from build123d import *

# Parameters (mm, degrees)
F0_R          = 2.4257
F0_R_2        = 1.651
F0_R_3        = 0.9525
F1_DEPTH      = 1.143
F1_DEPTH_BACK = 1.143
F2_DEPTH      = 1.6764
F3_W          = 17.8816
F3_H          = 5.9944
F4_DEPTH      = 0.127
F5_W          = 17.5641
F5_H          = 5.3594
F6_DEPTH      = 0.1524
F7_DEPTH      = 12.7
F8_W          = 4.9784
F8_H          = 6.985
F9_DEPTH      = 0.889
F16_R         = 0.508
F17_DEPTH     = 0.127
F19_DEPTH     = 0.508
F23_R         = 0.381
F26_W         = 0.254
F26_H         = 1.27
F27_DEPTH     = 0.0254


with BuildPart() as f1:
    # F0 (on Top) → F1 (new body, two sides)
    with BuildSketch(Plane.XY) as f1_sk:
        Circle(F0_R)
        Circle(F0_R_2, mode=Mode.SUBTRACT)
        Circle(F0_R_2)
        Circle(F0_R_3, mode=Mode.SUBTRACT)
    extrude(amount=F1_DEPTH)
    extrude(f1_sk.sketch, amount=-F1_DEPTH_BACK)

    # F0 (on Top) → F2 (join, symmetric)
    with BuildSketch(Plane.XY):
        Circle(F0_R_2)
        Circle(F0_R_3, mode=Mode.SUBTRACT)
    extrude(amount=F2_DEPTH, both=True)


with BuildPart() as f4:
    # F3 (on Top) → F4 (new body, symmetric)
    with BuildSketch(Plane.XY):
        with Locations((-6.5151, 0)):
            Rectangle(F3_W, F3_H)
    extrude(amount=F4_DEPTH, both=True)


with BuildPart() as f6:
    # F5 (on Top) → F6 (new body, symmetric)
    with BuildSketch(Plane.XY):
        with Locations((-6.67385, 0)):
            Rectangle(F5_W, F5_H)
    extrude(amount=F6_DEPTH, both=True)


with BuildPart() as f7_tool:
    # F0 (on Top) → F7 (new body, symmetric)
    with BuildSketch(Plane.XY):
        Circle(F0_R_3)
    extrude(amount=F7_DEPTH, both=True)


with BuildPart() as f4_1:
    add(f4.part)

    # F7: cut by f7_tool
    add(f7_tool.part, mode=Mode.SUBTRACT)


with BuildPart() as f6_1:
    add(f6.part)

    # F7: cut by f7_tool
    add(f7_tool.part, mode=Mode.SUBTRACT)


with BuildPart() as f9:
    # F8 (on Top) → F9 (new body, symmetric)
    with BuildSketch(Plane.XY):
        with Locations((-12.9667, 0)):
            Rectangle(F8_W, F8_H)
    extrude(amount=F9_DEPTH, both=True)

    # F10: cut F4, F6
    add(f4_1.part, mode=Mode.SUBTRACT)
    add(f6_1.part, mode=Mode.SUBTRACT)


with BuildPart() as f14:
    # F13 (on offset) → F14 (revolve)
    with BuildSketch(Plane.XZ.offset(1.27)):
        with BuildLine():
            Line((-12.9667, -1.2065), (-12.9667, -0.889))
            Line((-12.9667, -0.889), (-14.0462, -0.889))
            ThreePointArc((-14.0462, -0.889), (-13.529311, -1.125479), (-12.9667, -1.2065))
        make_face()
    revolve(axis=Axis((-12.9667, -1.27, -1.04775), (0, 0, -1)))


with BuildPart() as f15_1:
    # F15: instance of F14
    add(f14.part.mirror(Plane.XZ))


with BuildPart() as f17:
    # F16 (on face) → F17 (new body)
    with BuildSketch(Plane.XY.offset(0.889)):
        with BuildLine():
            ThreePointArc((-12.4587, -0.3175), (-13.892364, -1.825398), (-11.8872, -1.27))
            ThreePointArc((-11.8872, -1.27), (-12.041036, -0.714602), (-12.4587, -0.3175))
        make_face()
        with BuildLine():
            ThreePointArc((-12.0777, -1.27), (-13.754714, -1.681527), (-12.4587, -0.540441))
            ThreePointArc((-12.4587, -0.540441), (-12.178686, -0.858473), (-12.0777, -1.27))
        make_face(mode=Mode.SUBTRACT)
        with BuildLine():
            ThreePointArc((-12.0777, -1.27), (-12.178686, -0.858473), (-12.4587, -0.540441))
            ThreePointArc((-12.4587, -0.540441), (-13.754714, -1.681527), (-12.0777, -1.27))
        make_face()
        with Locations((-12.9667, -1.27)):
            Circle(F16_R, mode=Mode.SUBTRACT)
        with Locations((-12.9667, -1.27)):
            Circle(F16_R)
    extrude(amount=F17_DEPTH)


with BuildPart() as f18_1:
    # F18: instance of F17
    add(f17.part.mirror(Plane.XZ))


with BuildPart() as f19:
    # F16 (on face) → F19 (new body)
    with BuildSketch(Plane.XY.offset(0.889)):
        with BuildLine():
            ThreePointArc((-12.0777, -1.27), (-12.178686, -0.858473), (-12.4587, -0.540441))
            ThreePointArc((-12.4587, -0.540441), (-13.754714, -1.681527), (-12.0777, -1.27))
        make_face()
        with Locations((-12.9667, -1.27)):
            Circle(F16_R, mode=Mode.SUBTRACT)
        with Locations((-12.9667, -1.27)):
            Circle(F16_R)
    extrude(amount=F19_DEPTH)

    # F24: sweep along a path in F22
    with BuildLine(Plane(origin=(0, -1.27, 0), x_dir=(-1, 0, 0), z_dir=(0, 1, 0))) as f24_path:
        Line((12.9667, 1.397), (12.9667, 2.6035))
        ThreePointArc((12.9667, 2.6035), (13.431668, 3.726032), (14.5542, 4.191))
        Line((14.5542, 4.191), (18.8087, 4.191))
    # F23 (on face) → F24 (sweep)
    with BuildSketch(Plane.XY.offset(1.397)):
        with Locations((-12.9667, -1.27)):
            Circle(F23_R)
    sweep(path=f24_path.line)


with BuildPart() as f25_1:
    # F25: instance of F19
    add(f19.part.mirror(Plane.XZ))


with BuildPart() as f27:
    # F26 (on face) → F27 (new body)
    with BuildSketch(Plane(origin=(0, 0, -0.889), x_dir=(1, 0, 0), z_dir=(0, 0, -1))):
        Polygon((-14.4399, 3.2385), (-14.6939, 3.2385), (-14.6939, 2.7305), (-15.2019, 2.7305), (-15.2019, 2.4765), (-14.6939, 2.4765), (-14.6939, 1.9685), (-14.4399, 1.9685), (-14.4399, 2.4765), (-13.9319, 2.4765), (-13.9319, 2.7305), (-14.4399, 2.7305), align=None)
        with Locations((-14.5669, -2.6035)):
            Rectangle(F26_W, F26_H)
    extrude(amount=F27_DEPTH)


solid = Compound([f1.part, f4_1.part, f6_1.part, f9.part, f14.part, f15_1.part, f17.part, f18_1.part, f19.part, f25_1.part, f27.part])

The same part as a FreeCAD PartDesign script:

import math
import FreeCAD as App
import Part
import Sketcher

V = App.Vector
Q = App.Units.Quantity

doc = App.newDocument("Part")
params = doc.addObject("Spreadsheet::Sheet", "Params")
for row, (alias, value) in enumerate([
    ("sketch1_diameter", "0.191 in"),
    ("sketch1_diameter2", "0.075 in"),
    ("pad1_length", "0.045 in"),
    ("pad1_length2", "0.045 in"),
    ("sketch2_diameter", "0.13 in"),
    ("sketch2_diameter2", "0.075 in"),
    ("pad2_length", "0.132 in"),
    ("sketch3_width", "0.704 in"),
    ("sketch3_height", "0.236 in"),
    ("pad3_length", "0.01 in"),
    ("sketch4_height", "0.211 in"),
    ("pad4_length", "0.012 in"),
    ("sketch5_diameter", "0.075 in"),
    ("pad5_length", "1 in"),
    ("sketch6_width", "0.196 in"),
    ("sketch6_height", "0.275 in"),
    ("pad6_length", "0.07 in"),
    ("revolution_angle", "360 deg"),
    ("pad7_length", "0.005 in"),
    ("sketch9_radius", "0.035 in"),
    ("sketch9_width", "0.02 in"),
    ("pad8_length", "0.02 in"),
    ("sketch10_diameter", "0.03 in"),
    ("sketch11_radius", "0.0625 in"),
    ("sketch12_width", "0.01 in"),
    ("sketch12_width2", "0.02 in"),
    ("pad9_length", "0.001 in"),
], start=1):
    params.set(f"A{row}", alias)
    params.set(f"B{row}", "=" + value)
    params.setAlias(f"B{row}", alias)

body = doc.addObject("PartDesign::Body", "Body")

# Sketch on XY plane
sketch1 = body.newObject("Sketcher::SketchObject", "Sketch")
sketch1.AttachmentSupport = (doc.getObject("XY_Plane"), [""])
sketch1.MapMode = "FlatFace"
sketch1.addGeometry(Part.Circle(V(0, 0, 0), V(0, 0, 1), 2.4), False)
sketch1.addGeometry(Part.Circle(V(0, 0, 0), V(0, 0, 1), 1), False)
sketch1.addConstraint(Sketcher.Constraint("Coincident", 0, 3, -1, 1))
sketch1.addConstraint(Sketcher.Constraint("Coincident", 1, 3, -1, 1))
sketch1.addConstraint(Sketcher.Constraint("Diameter", 0, Q("0.191 in")))
sketch1.addConstraint(Sketcher.Constraint("Diameter", 1, Q("0.075 in")))
sketch1.setExpression("Constraints[2]", "Params.sketch1_diameter")
sketch1.setExpression("Constraints[3]", "Params.sketch1_diameter2")
pad1 = body.newObject("PartDesign::Pad", "Pad")
pad1.Profile = sketch1
pad1.Type = "TwoLengths"
pad1.setExpression("Length", "Params.pad1_length")
pad1.setExpression("Length2", "Params.pad1_length2")

# Sketch on XY plane
sketch2 = body.newObject("Sketcher::SketchObject", "Sketch001")
sketch2.AttachmentSupport = (doc.getObject("XY_Plane"), [""])
sketch2.MapMode = "FlatFace"
sketch2.addGeometry(Part.Circle(V(0, 0, 0), V(0, 0, 1), 1.7), False)
sketch2.addGeometry(Part.Circle(V(0, 0, 0), V(0, 0, 1), 1), False)
sketch2.addConstraint(Sketcher.Constraint("Coincident", 0, 3, -1, 1))
sketch2.addConstraint(Sketcher.Constraint("Coincident", 1, 3, -1, 1))
sketch2.addConstraint(Sketcher.Constraint("Diameter", 0, Q("0.13 in")))
sketch2.addConstraint(Sketcher.Constraint("Diameter", 1, Q("0.075 in")))
sketch2.setExpression("Constraints[2]", "Params.sketch2_diameter")
sketch2.setExpression("Constraints[3]", "Params.sketch2_diameter2")
pad2 = body.newObject("PartDesign::Pad", "Pad001")
pad2.Profile = sketch2
pad2.setExpression("Length", "Params.pad2_length")
pad2.Midplane = True
body2 = doc.addObject("PartDesign::Body", "Body001")

# Sketch on XY plane
sketch3 = body2.newObject("Sketcher::SketchObject", "Sketch002")
sketch3.AttachmentSupport = (doc.getObject("XY_Plane001"), [""])
sketch3.MapMode = "FlatFace"
sketch3.addGeometry(Part.LineSegment(V(-15, 3, 0), V(-15, -3, 0)), False)
sketch3.addGeometry(Part.LineSegment(V(-15, -3, 0), V(2, -3, 0)), False)
sketch3.addGeometry(Part.LineSegment(V(2, -3, 0), V(2, 3, 0)), False)
sketch3.addGeometry(Part.LineSegment(V(2, 3, 0), V(-15, 3, 0)), False)
sketch3.addConstraint(Sketcher.Constraint("Coincident", 0, 2, 1, 1))
sketch3.addConstraint(Sketcher.Constraint("Coincident", 1, 2, 2, 1))
sketch3.addConstraint(Sketcher.Constraint("Coincident", 2, 2, 3, 1))
sketch3.addConstraint(Sketcher.Constraint("Coincident", 3, 2, 0, 1))
sketch3.addConstraint(Sketcher.Constraint("Vertical", 0))
sketch3.addConstraint(Sketcher.Constraint("Horizontal", 1))
sketch3.addConstraint(Sketcher.Constraint("Vertical", 2))
sketch3.addConstraint(Sketcher.Constraint("Horizontal", 3))
sketch3.addConstraint(Sketcher.Constraint("DistanceX", 1, 1, 1, 2, Q("0.704 in")))
sketch3.addConstraint(Sketcher.Constraint("DistanceY", 0, 2, 0, 1, Q("0.236 in")))
sketch3.addConstraint(Sketcher.Constraint("DistanceY", 0, 2, -1, 1, Q("0.118 in")))
sketch3.addConstraint(Sketcher.Constraint("DistanceX", 0, 2, -1, 1, Q("0.6085 in")))
sketch3.setExpression("Constraints[8]", "Params.sketch3_width")
sketch3.setExpression("Constraints[9]", "Params.sketch3_height")
pad3 = body2.newObject("PartDesign::Pad", "Pad002")
pad3.Profile = sketch3
pad3.setExpression("Length", "Params.pad3_length")
pad3.Midplane = True
body3 = doc.addObject("PartDesign::Body", "Body002")

# Sketch on XY plane
sketch4 = body3.newObject("Sketcher::SketchObject", "Sketch003")
sketch4.AttachmentSupport = (doc.getObject("XY_Plane002"), [""])
sketch4.MapMode = "FlatFace"
sketch4.addGeometry(Part.LineSegment(V(-15, 3, 0), V(-15, -3, 0)), False)
sketch4.addGeometry(Part.LineSegment(V(-15, -3, 0), V(2, -3, 0)), False)
sketch4.addGeometry(Part.LineSegment(V(2, -3, 0), V(2, 3, 0)), False)
sketch4.addGeometry(Part.LineSegment(V(2, 3, 0), V(-15, 3, 0)), False)
sketch4.addConstraint(Sketcher.Constraint("Coincident", 0, 2, 1, 1))
sketch4.addConstraint(Sketcher.Constraint("Coincident", 1, 2, 2, 1))
sketch4.addConstraint(Sketcher.Constraint("Coincident", 2, 2, 3, 1))
sketch4.addConstraint(Sketcher.Constraint("Coincident", 3, 2, 0, 1))
sketch4.addConstraint(Sketcher.Constraint("Vertical", 0))
sketch4.addConstraint(Sketcher.Constraint("Horizontal", 1))
sketch4.addConstraint(Sketcher.Constraint("Vertical", 2))
sketch4.addConstraint(Sketcher.Constraint("Horizontal", 3))
sketch4.addConstraint(Sketcher.Constraint("DistanceY", 0, 2, 0, 1, Q("0.211 in")))
sketch4.addConstraint(Sketcher.Constraint("DistanceX", 1, 1, 1, 2, Q("0.6915 in")))
sketch4.addConstraint(Sketcher.Constraint("DistanceX", -1, 1, 1, 2, Q("0.083 in")))
sketch4.addConstraint(Sketcher.Constraint("DistanceY", 0, 2, -1, 1, Q("0.1055 in")))
sketch4.setExpression("Constraints[8]", "Params.sketch4_height")
pad4 = body3.newObject("PartDesign::Pad", "Pad003")
pad4.Profile = sketch4
pad4.setExpression("Length", "Params.pad4_length")
pad4.Midplane = True
body4 = doc.addObject("PartDesign::Body", "Body003")

# Sketch on XY plane
sketch5 = body4.newObject("Sketcher::SketchObject", "Sketch004")
sketch5.AttachmentSupport = (doc.getObject("XY_Plane003"), [""])
sketch5.MapMode = "FlatFace"
sketch5.addGeometry(Part.Circle(V(0, 0, 0), V(0, 0, 1), 1), False)
sketch5.addConstraint(Sketcher.Constraint("Coincident", 0, 3, -1, 1))
sketch5.addConstraint(Sketcher.Constraint("Diameter", 0, Q("0.075 in")))
sketch5.setExpression("Constraints[1]", "Params.sketch5_diameter")
pad5 = body4.newObject("PartDesign::Pad", "Pad004")
pad5.Profile = sketch5
pad5.setExpression("Length", "Params.pad5_length")
pad5.Midplane = True
doc.recompute()

body5 = doc.addObject("PartDesign::Body", "Body004")
body5.BaseFeature = body4
boolean = body2.newObject("PartDesign::Boolean", "Boolean")
boolean.Type = "Cut"
boolean.addObjects([body5])
doc.recompute()

boolean2 = body3.newObject("PartDesign::Boolean", "Boolean001")
boolean2.Type = "Cut"
boolean2.addObjects([body4])
body6 = doc.addObject("PartDesign::Body", "Body005")

# Sketch on XY plane
sketch6 = body6.newObject("Sketcher::SketchObject", "Sketch005")
sketch6.AttachmentSupport = (doc.getObject("XY_Plane005"), [""])
sketch6.MapMode = "FlatFace"
sketch6.addGeometry(Part.LineSegment(V(-15.5, 3.5, 0), V(-15.5, -3.5, 0)), False)
sketch6.addGeometry(Part.LineSegment(V(-15.5, -3.5, 0), V(-10.5, -3.5, 0)), False)
sketch6.addGeometry(Part.LineSegment(V(-10.5, -3.5, 0), V(-10.5, 3.5, 0)), False)
sketch6.addGeometry(Part.LineSegment(V(-10.5, 3.5, 0), V(-15.5, 3.5, 0)), False)
sketch6.addConstraint(Sketcher.Constraint("Coincident", 0, 2, 1, 1))
sketch6.addConstraint(Sketcher.Constraint("Coincident", 1, 2, 2, 1))
sketch6.addConstraint(Sketcher.Constraint("Coincident", 2, 2, 3, 1))
sketch6.addConstraint(Sketcher.Constraint("Coincident", 3, 2, 0, 1))
sketch6.addConstraint(Sketcher.Constraint("Vertical", 0))
sketch6.addConstraint(Sketcher.Constraint("Horizontal", 1))
sketch6.addConstraint(Sketcher.Constraint("Vertical", 2))
sketch6.addConstraint(Sketcher.Constraint("Horizontal", 3))
sketch6.addConstraint(Sketcher.Constraint("DistanceX", 1, 1, 1, 2, Q("0.196 in")))
sketch6.addConstraint(Sketcher.Constraint("DistanceY", 0, 2, 0, 1, Q("0.275 in")))
sketch6.addConstraint(Sketcher.Constraint("DistanceX", 0, 2, -1, 1, Q("0.6085 in")))
sketch6.addConstraint(Sketcher.Constraint("DistanceY", 0, 2, -1, 1, Q("0.1375 in")))
sketch6.setExpression("Constraints[8]", "Params.sketch6_width")
sketch6.setExpression("Constraints[9]", "Params.sketch6_height")
pad6 = body6.newObject("PartDesign::Pad", "Pad005")
pad6.Profile = sketch6
pad6.setExpression("Length", "Params.pad6_length")
pad6.Midplane = True
doc.recompute()

body7 = doc.addObject("PartDesign::Body", "Body006")
body7.BaseFeature = body2
boolean3 = body6.newObject("PartDesign::Boolean", "Boolean002")
boolean3.Type = "Cut"
boolean3.addObjects([body7])
doc.recompute()

body8 = doc.addObject("PartDesign::Body", "Body007")
body8.BaseFeature = body3
boolean4 = body6.newObject("PartDesign::Boolean", "Boolean003")
boolean4.Type = "Cut"
boolean4.addObjects([body8])
doc.recompute()
body9 = doc.addObject("PartDesign::Body", "Body008")

# Sketch on XZ plane
sketch7 = body9.newObject("Sketcher::SketchObject", "Sketch006")
sketch7.AttachmentSupport = (doc.getObject("XZ_Plane008"), [""])
sketch7.MapMode = "FlatFace"
sketch7.AttachmentOffset = App.Placement(V(0, 0, 0.05 * 25.4), App.Rotation())
sketch7.addGeometry(Part.LineSegment(V(-12.97, -1.21, 0), V(-12.97, -0.89, 0)), False)
sketch7.addGeometry(Part.LineSegment(V(-12.97, -0.89, 0), V(-14.05, -0.89, 0)), False)
sketch7.addGeometry(Part.ArcOfCircle(Part.Circle(V(-12.97, 0.79, 0), V(0, 0, 1), 1.99), math.radians(-123), math.radians(-90)), False)
sketch7.addGeometry(Part.LineSegment(V(-12.97, 0.79, 0), V(-12.97, -1.21, 0)), True)  # axis
sketch7.addConstraint(Sketcher.Constraint("Coincident", 0, 2, 1, 1))
sketch7.addConstraint(Sketcher.Constraint("Coincident", 1, 2, 2, 1))
sketch7.addConstraint(Sketcher.Constraint("Coincident", 2, 2, 0, 1))
sketch7.addConstraint(Sketcher.Constraint("Vertical", 0))
sketch7.addConstraint(Sketcher.Constraint("Horizontal", 1))
sketch7.addConstraint(Sketcher.Constraint("Vertical", 3))
sketch7.addConstraint(Sketcher.Constraint("Coincident", 3, 1, 2, 3))
sketch7.addConstraint(Sketcher.Constraint("Coincident", 3, 2, 2, 2))
sketch7.addConstraint(Sketcher.Constraint("Radius", 2, Q("0.0785 in")))
sketch7.addConstraint(Sketcher.Constraint("DistanceX", 1, 2, 1, 1, Q("0.0425 in")))
sketch7.addConstraint(Sketcher.Constraint("DistanceY", -1, 1, 2, 3, Q("0.031 in")))
sketch7.addConstraint(Sketcher.Constraint("DistanceX", 1, 2, -1, 1, Q("0.553 in")))
revolution = body9.newObject("PartDesign::Revolution", "Revolution")
revolution.Profile = sketch7
revolution.ReferenceAxis = (sketch7, ["Axis0"])
revolution.setExpression("Angle", "Params.revolution_angle")
body10 = doc.addObject("PartDesign::Body", "Body009")
doc.recompute()

mirroring = doc.addObject("Part::Mirroring", "Mirroring")
mirroring.Source = body9
mirroring.Base = V(0, 0, 0)
mirroring.Normal = V(0, -1, 0)
body10.BaseFeature = mirroring
doc.recompute()
body11 = doc.addObject("PartDesign::Body", "Body010")

# Sketch on XY plane
sketch8 = body11.newObject("Sketcher::SketchObject", "Sketch007")
sketch8.AttachmentSupport = (doc.getObject("XY_Plane010"), [""])
sketch8.MapMode = "FlatFace"
sketch8.AttachmentOffset = App.Placement(V(0, 0, 0.035 * 25.4), App.Rotation())
sketch8.addGeometry(Part.ArcOfCircle(Part.Circle(V(-13, -1.3, 0), V(0, 0, 1), 1.1), math.radians(62), math.radians(360)), False)
sketch8.addGeometry(Part.ArcOfCircle(Part.Circle(V(-13, -1.3, 0), V(0, 0, 1), 1.1), math.radians(0), math.radians(62)), False)
sketch8.addConstraint(Sketcher.Constraint("Tangent", 0, 1, 1, 2))
sketch8.addConstraint(Sketcher.Constraint("Coincident", 1, 1, 0, 2))
sketch8.addConstraint(Sketcher.Constraint("Horizontal", 0, 3, 1, 1))
sketch8.addConstraint(Sketcher.Constraint("Radius", 0, Q("0.0425 in")))
sketch8.addConstraint(Sketcher.Constraint("DistanceY", 0, 3, -1, 1, Q("0.05 in")))
sketch8.addConstraint(Sketcher.Constraint("DistanceX", 1, 3, 0, 1, Q("0.0199999 in")))
sketch8.addConstraint(Sketcher.Constraint("DistanceX", 1, 1, -1, 1, Q("0.468 in")))
pad7 = body11.newObject("PartDesign::Pad", "Pad006")
pad7.Profile = sketch8
pad7.setExpression("Length", "Params.pad7_length")
body12 = doc.addObject("PartDesign::Body", "Body011")
doc.recompute()

mirroring2 = doc.addObject("Part::Mirroring", "Mirroring001")
mirroring2.Source = body11
mirroring2.Base = V(0, 0, 0)
mirroring2.Normal = V(0, -1, 0)
body12.BaseFeature = mirroring2
doc.recompute()
body13 = doc.addObject("PartDesign::Body", "Body012")

# Sketch on XY plane
sketch9 = body13.newObject("Sketcher::SketchObject", "Sketch008")
sketch9.AttachmentSupport = (doc.getObject("XY_Plane012"), [""])
sketch9.MapMode = "FlatFace"
sketch9.AttachmentOffset = App.Placement(V(0, 0, 0.035 * 25.4), App.Rotation())
sketch9.addGeometry(Part.ArcOfCircle(Part.Circle(V(-13, -1.3, 0), V(0, 0, 1), 0.9), math.radians(0), math.radians(55)), False)
sketch9.addGeometry(Part.ArcOfCircle(Part.Circle(V(-13, -1.3, 0), V(0, 0, 1), 0.9), math.radians(55), math.radians(360)), False)
sketch9.addConstraint(Sketcher.Constraint("Tangent", 0, 1, 1, 2))
sketch9.addConstraint(Sketcher.Constraint("Coincident", 1, 1, 0, 2))
sketch9.addConstraint(Sketcher.Constraint("Horizontal", 1, 3, 0, 1))
sketch9.addConstraint(Sketcher.Constraint("Radius", 0, Q("0.035 in")))
sketch9.addConstraint(Sketcher.Constraint("DistanceY", 0, 3, -1, 1, Q("0.05 in")))
sketch9.addConstraint(Sketcher.Constraint("DistanceX", 1, 3, 1, 1, Q("0.02 in")))
sketch9.addConstraint(Sketcher.Constraint("DistanceX", 0, 3, -1, 1, Q("0.5105 in")))
sketch9.setExpression("Constraints[3]", "Params.sketch9_radius")
sketch9.setExpression("Constraints[5]", "Params.sketch9_width")
pad8 = body13.newObject("PartDesign::Pad", "Pad007")
pad8.Profile = sketch9
pad8.setExpression("Length", "Params.pad8_length")

# Sketch on XY plane
sketch10 = body13.newObject("Sketcher::SketchObject", "Sketch009")
sketch10.AttachmentSupport = (doc.getObject("XY_Plane012"), [""])
sketch10.MapMode = "FlatFace"
sketch10.AttachmentOffset = App.Placement(V(0, 0, 0.055 * 25.4), App.Rotation())
sketch10.addGeometry(Part.Circle(V(-12.97, -1.27, 0), V(0, 0, 1), 0.38), False)
sketch10.addConstraint(Sketcher.Constraint("Diameter", 0, Q("0.03 in")))
sketch10.addConstraint(Sketcher.Constraint("DistanceY", 0, 3, -1, 1, Q("0.05 in")))
sketch10.addConstraint(Sketcher.Constraint("DistanceX", 0, 3, -1, 1, Q("0.5105 in")))
sketch10.setExpression("Constraints[0]", "Params.sketch10_diameter")

# Sketch on XZ plane
sketch11 = body13.newObject("Sketcher::SketchObject", "Sketch010")
sketch11.AttachmentSupport = (doc.getObject("XZ_Plane012"), [""])
sketch11.MapMode = "FlatFace"
sketch11.AttachmentOffset = App.Placement(V(0, 0, 0.05 * 25.4), App.Rotation())
sketch11.addGeometry(Part.LineSegment(V(-13, 1.4, 0), V(-13, 2.6, 0)), False)
sketch11.addGeometry(Part.ArcOfCircle(Part.Circle(V(-14.6, 2.6, 0), V(0, 0, 1), 1.6), math.radians(0), math.radians(90)), False)
sketch11.addGeometry(Part.LineSegment(V(-14.6, 4.2, 0), V(-18.8, 4.2, 0)), False)
sketch11.addConstraint(Sketcher.Constraint("Tangent", 0, 2, 1, 1))
sketch11.addConstraint(Sketcher.Constraint("Tangent", 1, 2, 2, 1))
sketch11.addConstraint(Sketcher.Constraint("Vertical", 0))
sketch11.addConstraint(Sketcher.Constraint("Horizontal", 2))
sketch11.addConstraint(Sketcher.Constraint("Radius", 1, Q("0.0625 in")))
sketch11.addConstraint(Sketcher.Constraint("DistanceY", 0, 1, 1, 2, Q("0.11 in")))
sketch11.addConstraint(Sketcher.Constraint("DistanceX", 2, 2, 0, 2, Q("0.23 in")))
sketch11.addConstraint(Sketcher.Constraint("DistanceX", 1, 3, -1, 1, Q("0.573 in")))
sketch11.addConstraint(Sketcher.Constraint("DistanceY", -1, 1, 0, 1, Q("0.055 in")))
sketch11.setExpression("Constraints[4]", "Params.sketch11_radius")
doc.recompute()

additivepipe = body13.newObject("PartDesign::AdditivePipe", "AdditivePipe")
additivepipe.Profile = sketch10
additivepipe.Spine = (sketch11, ["Edge1", "Edge2", "Edge3"])
body14 = doc.addObject("PartDesign::Body", "Body013")
doc.recompute()

mirroring3 = doc.addObject("Part::Mirroring", "Mirroring002")
mirroring3.Source = body13
mirroring3.Base = V(0, 0, 0)
mirroring3.Normal = V(0, -1, 0)
body14.BaseFeature = mirroring3
doc.recompute()
body15 = doc.addObject("PartDesign::Body", "Body014")
body15.AllowCompound = True

# Sketch on XY plane
sketch12 = body15.newObject("Sketcher::SketchObject", "Sketch011")
sketch12.AttachmentSupport = (doc.getObject("XY_Plane014"), [""])
sketch12.MapMode = "FlatFace"
sketch12.AttachmentOffset = App.Placement(V(0, 0, -0.035 * 25.4), App.Rotation())
sketch12.addGeometry(Part.LineSegment(V(-14.44, -3.24, 0), V(-14.69, -3.24, 0)), False)
sketch12.addGeometry(Part.LineSegment(V(-14.69, -3.24, 0), V(-14.69, -2.73, 0)), False)
sketch12.addGeometry(Part.LineSegment(V(-14.69, -2.73, 0), V(-15.2, -2.73, 0)), False)
sketch12.addGeometry(Part.LineSegment(V(-15.2, -2.73, 0), V(-15.2, -2.48, 0)), False)
sketch12.addGeometry(Part.LineSegment(V(-15.2, -2.48, 0), V(-14.69, -2.48, 0)), False)
sketch12.addGeometry(Part.LineSegment(V(-14.69, -2.48, 0), V(-14.69, -1.97, 0)), False)
sketch12.addGeometry(Part.LineSegment(V(-14.69, -1.97, 0), V(-14.44, -1.97, 0)), False)
sketch12.addGeometry(Part.LineSegment(V(-14.44, -1.97, 0), V(-14.44, -2.48, 0)), False)
sketch12.addGeometry(Part.LineSegment(V(-14.44, -2.48, 0), V(-13.93, -2.48, 0)), False)
sketch12.addGeometry(Part.LineSegment(V(-13.93, -2.48, 0), V(-13.93, -2.73, 0)), False)
sketch12.addGeometry(Part.LineSegment(V(-13.93, -2.73, 0), V(-14.44, -2.73, 0)), False)
sketch12.addGeometry(Part.LineSegment(V(-14.44, -2.73, 0), V(-14.44, -3.24, 0)), False)
sketch12.addGeometry(Part.LineSegment(V(-14.69, 1.97, 0), V(-14.69, 3.24, 0)), False)
sketch12.addGeometry(Part.LineSegment(V(-14.69, 3.24, 0), V(-14.44, 3.24, 0)), False)
sketch12.addGeometry(Part.LineSegment(V(-14.44, 3.24, 0), V(-14.44, 1.97, 0)), False)
sketch12.addGeometry(Part.LineSegment(V(-14.44, 1.97, 0), V(-14.69, 1.97, 0)), False)
sketch12.addConstraint(Sketcher.Constraint("Coincident", 0, 2, 1, 1))
sketch12.addConstraint(Sketcher.Constraint("Coincident", 1, 2, 2, 1))
sketch12.addConstraint(Sketcher.Constraint("Coincident", 2, 2, 3, 1))
sketch12.addConstraint(Sketcher.Constraint("Coincident", 3, 2, 4, 1))
sketch12.addConstraint(Sketcher.Constraint("Coincident", 4, 2, 5, 1))
sketch12.addConstraint(Sketcher.Constraint("Coincident", 5, 2, 6, 1))
sketch12.addConstraint(Sketcher.Constraint("Coincident", 6, 2, 7, 1))
sketch12.addConstraint(Sketcher.Constraint("Coincident", 7, 2, 8, 1))
sketch12.addConstraint(Sketcher.Constraint("Coincident", 8, 2, 9, 1))
sketch12.addConstraint(Sketcher.Constraint("Coincident", 9, 2, 10, 1))
sketch12.addConstraint(Sketcher.Constraint("Coincident", 10, 2, 11, 1))
sketch12.addConstraint(Sketcher.Constraint("Coincident", 11, 2, 0, 1))
sketch12.addConstraint(Sketcher.Constraint("Coincident", 12, 2, 13, 1))
sketch12.addConstraint(Sketcher.Constraint("Coincident", 13, 2, 14, 1))
sketch12.addConstraint(Sketcher.Constraint("Coincident", 14, 2, 15, 1))
sketch12.addConstraint(Sketcher.Constraint("Coincident", 15, 2, 12, 1))
sketch12.addConstraint(Sketcher.Constraint("Horizontal", 0))
sketch12.addConstraint(Sketcher.Constraint("Vertical", 1))
sketch12.addConstraint(Sketcher.Constraint("Horizontal", 2))
sketch12.addConstraint(Sketcher.Constraint("Vertical", 3))
sketch12.addConstraint(Sketcher.Constraint("Horizontal", 4))
sketch12.addConstraint(Sketcher.Constraint("Vertical", 5))
sketch12.addConstraint(Sketcher.Constraint("Horizontal", 6))
sketch12.addConstraint(Sketcher.Constraint("Vertical", 7))
sketch12.addConstraint(Sketcher.Constraint("Horizontal", 8))
sketch12.addConstraint(Sketcher.Constraint("Vertical", 9))
sketch12.addConstraint(Sketcher.Constraint("Horizontal", 10))
sketch12.addConstraint(Sketcher.Constraint("Vertical", 11))
sketch12.addConstraint(Sketcher.Constraint("Vertical", 12))
sketch12.addConstraint(Sketcher.Constraint("Horizontal", 13))
sketch12.addConstraint(Sketcher.Constraint("Vertical", 14))
sketch12.addConstraint(Sketcher.Constraint("Horizontal", 15))
sketch12.addConstraint(Sketcher.Constraint("Symmetric", 0, 2, 12, 2, -1))
sketch12.addConstraint(Sketcher.Constraint("Symmetric", 6, 2, 14, 2, -1))
sketch12.addConstraint(Sketcher.Constraint("Horizontal", 4, 2, 7, 2))
sketch12.addConstraint(Sketcher.Constraint("Horizontal", 2, 2, 9, 2))
sketch12.addConstraint(Sketcher.Constraint("Vertical", 1, 2, 4, 2))
sketch12.addConstraint(Sketcher.Constraint("Vertical", 7, 2, 10, 2))
sketch12.addConstraint(Sketcher.Constraint("Equal", 4, 8))
sketch12.addConstraint(Sketcher.Constraint("Equal", 10, 1))
sketch12.addConstraint(Sketcher.Constraint("Equal", 15, 3))
sketch12.addConstraint(Sketcher.Constraint("Equal", 1, 5))
sketch12.addConstraint(Sketcher.Constraint("DistanceX", 0, 2, 0, 1, Q("0.01 in")))
sketch12.addConstraint(Sketcher.Constraint("DistanceX", 2, 2, 2, 1, Q("0.02 in")))
sketch12.addConstraint(Sketcher.Constraint("DistanceY", 5, 2, 12, 2, Q("0.205 in")))
sketch12.addConstraint(Sketcher.Constraint("DistanceX", 0, 2, -1, 1, Q("0.5785 in")))
sketch12.setExpression("Constraints[42]", "Params.sketch12_width")
sketch12.setExpression("Constraints[43]", "Params.sketch12_width2")
pad9 = body15.newObject("PartDesign::Pad", "Pad008")
pad9.Profile = sketch12
pad9.setExpression("Length", "Params.pad9_length")
pad9.Reversed = True

doc.recompute()
